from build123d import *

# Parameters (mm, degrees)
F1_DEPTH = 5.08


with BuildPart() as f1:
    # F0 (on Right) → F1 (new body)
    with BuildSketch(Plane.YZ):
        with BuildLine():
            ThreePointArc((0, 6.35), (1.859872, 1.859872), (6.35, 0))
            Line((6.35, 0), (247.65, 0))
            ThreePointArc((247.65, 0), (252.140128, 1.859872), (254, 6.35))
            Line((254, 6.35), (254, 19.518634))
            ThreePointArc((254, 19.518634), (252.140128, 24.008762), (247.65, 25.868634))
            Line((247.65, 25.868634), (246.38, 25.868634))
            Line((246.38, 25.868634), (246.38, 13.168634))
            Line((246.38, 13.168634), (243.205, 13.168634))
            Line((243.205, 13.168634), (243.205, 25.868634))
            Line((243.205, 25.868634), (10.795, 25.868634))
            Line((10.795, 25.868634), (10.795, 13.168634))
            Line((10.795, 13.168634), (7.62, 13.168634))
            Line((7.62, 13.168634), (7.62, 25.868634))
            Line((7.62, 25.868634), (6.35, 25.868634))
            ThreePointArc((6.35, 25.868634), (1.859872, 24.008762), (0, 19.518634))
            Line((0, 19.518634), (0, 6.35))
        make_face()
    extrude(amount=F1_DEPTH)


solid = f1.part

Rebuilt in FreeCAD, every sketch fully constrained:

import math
import FreeCAD as App
import Part
import Sketcher

V = App.Vector
Q = App.Units.Quantity

doc = App.newDocument("Part")
params = doc.addObject("Spreadsheet::Sheet", "Params")
for row, (alias, value) in enumerate([
    ("sketch1_radius", "0.25 in"),
    ("sketch1_width", "9.5 in"),
    ("sketch1_height", "0.5 in"),
    ("sketch1_width2", "0.05 in"),
    ("sketch1_width3", "9.15 in"),
    ("pad1_length", "0.2 in"),
], start=1):
    params.set(f"A{row}", alias)
    params.set(f"B{row}", "=" + value)
    params.setAlias(f"B{row}", alias)

body = doc.addObject("PartDesign::Body", "Body")

sketch1 = doc.addObject("Sketcher::SketchObject", "Sketch")
body.addObject(sketch1)
sketch1.AttachmentSupport = (doc.YZ_Plane, [""])
sketch1.MapMode = "FlatFace"
sketch1.addGeometry([
    Part.ArcOfCircle(Part.Circle(V(6.4, 6.4, 0), V(0, 0, 1), 6.4), math.radians(-180), math.radians(-90)),
    Part.LineSegment(V(6.3, 0, 0), V(247.7, 0, 0)),
    Part.ArcOfCircle(Part.Circle(V(247.6, 6.4, 0), V(0, 0, 1), 6.4), math.radians(-90), math.radians(0)),
    Part.LineSegment(V(254, 6.3, 0), V(254, 19.5, 0)),
    Part.ArcOfCircle(Part.Circle(V(247.6, 19.5, 0), V(0, 0, 1), 6.4), math.radians(0), math.radians(90)),
    Part.LineSegment(V(247.7, 25.9, 0), V(246.4, 25.9, 0)),
    Part.LineSegment(V(246.4, 25.9, 0), V(246.4, 13.2, 0)),
    Part.LineSegment(V(246.4, 13.2, 0), V(243.2, 13.2, 0)),
    Part.LineSegment(V(243.2, 13.2, 0), V(243.2, 25.9, 0)),
    Part.LineSegment(V(243.2, 25.9, 0), V(10.8, 25.9, 0)),
    Part.LineSegment(V(10.8, 25.9, 0), V(10.8, 13.2, 0)),
    Part.LineSegment(V(10.8, 13.2, 0), V(7.6, 13.2, 0)),
    Part.LineSegment(V(7.6, 13.2, 0), V(7.6, 25.9, 0)),
    Part.LineSegment(V(7.6, 25.9, 0), V(6.3, 25.9, 0)),
    Part.ArcOfCircle(Part.Circle(V(6.4, 19.5, 0), V(0, 0, 1), 6.4), math.radians(90), math.radians(180)),
    Part.LineSegment(V(0, 19.5, 0), V(0, 6.3, 0)),
], False)
sketch1.addConstraint([
    Sketcher.Constraint("Tangent", 0, 2, 1, 1),
    Sketcher.Constraint("Tangent", 1, 2, 2, 1),
    Sketcher.Constraint("Tangent", 2, 2, 3, 1),
    Sketcher.Constraint("Tangent", 3, 2, 4, 1),
    Sketcher.Constraint("Tangent", 4, 2, 5, 1),
    Sketcher.Constraint("Coincident", 5, 2, 6, 1),
    Sketcher.Constraint("Coincident", 6, 2, 7, 1),
    Sketcher.Constraint("Coincident", 7, 2, 8, 1),
    Sketcher.Constraint("Coincident", 8, 2, 9, 1),
    Sketcher.Constraint("Coincident", 9, 2, 10, 1),
    Sketcher.Constraint("Coincident", 10, 2, 11, 1),
    Sketcher.Constraint("Coincident", 11, 2, 12, 1),
    Sketcher.Constraint("Coincident", 12, 2, 13, 1),
    Sketcher.Constraint("Tangent", 13, 2, 14, 1),
    Sketcher.Constraint("Tangent", 14, 2, 15, 1),
    Sketcher.Constraint("Tangent", 15, 2, 0, 1),
    Sketcher.Constraint("Horizontal", 1),
    Sketcher.Constraint("Vertical", 3),
    Sketcher.Constraint("Horizontal", 5),
    Sketcher.Constraint("Vertical", 6),
    Sketcher.Constraint("Horizontal", 7),
    Sketcher.Constraint("Vertical", 8),
    Sketcher.Constraint("Horizontal", 9),
    Sketcher.Constraint("Vertical", 10),
    Sketcher.Constraint("Horizontal", 11),
    Sketcher.Constraint("Vertical", 12),
    Sketcher.Constraint("Horizontal", 13),
    Sketcher.Constraint("Vertical", 15),
    Sketcher.Constraint("Equal", 0, 2),
    Sketcher.Constraint("Equal", 2, 4),
    Sketcher.Constraint("Equal", 4, 14),
    Sketcher.Constraint("PointOnObject", 0, 2, -1),
    Sketcher.Constraint("PointOnObject", 14, 2, -2),
    Sketcher.Constraint("Horizontal", 4, 3, 14, 3),
    Sketcher.Constraint("Horizontal", 5, 2, 8, 2),
    Sketcher.Constraint("Horizontal", 7, 2, 10, 2),
    Sketcher.Constraint("Equal", 7, 11),
    Sketcher.Constraint("Equal", 5, 13),
    Sketcher.Constraint("Radius", 0, Q("0.25 in")),
    Sketcher.Constraint("DistanceX", 1, 1, 1, 2, Q("9.5 in")),
    Sketcher.Constraint("DistanceY", 6, 2, 6, 1, Q("0.5 in")),
    Sketcher.Constraint("DistanceX", 5, 2, 5, 1, Q("0.05 in")),
    Sketcher.Constraint("DistanceX", 9, 2, 9, 1, Q("9.15 in")),
    Sketcher.Constraint("DistanceY", 3, 1, 3, 2, Q("13.168634 mm")),
])
sketch1.setExpression("Constraints[38]", "Params.sketch1_radius")
sketch1.setExpression("Constraints[39]", "Params.sketch1_width")
sketch1.setExpression("Constraints[40]", "Params.sketch1_height")
sketch1.setExpression("Constraints[41]", "Params.sketch1_width2")
sketch1.setExpression("Constraints[42]", "Params.sketch1_width3")
pad1 = doc.addObject("PartDesign::Pad", "Pad")
body.addObject(pad1)
pad1.Profile = sketch1
pad1.setExpression("Length", "Params.pad1_length")

doc.recompute()
